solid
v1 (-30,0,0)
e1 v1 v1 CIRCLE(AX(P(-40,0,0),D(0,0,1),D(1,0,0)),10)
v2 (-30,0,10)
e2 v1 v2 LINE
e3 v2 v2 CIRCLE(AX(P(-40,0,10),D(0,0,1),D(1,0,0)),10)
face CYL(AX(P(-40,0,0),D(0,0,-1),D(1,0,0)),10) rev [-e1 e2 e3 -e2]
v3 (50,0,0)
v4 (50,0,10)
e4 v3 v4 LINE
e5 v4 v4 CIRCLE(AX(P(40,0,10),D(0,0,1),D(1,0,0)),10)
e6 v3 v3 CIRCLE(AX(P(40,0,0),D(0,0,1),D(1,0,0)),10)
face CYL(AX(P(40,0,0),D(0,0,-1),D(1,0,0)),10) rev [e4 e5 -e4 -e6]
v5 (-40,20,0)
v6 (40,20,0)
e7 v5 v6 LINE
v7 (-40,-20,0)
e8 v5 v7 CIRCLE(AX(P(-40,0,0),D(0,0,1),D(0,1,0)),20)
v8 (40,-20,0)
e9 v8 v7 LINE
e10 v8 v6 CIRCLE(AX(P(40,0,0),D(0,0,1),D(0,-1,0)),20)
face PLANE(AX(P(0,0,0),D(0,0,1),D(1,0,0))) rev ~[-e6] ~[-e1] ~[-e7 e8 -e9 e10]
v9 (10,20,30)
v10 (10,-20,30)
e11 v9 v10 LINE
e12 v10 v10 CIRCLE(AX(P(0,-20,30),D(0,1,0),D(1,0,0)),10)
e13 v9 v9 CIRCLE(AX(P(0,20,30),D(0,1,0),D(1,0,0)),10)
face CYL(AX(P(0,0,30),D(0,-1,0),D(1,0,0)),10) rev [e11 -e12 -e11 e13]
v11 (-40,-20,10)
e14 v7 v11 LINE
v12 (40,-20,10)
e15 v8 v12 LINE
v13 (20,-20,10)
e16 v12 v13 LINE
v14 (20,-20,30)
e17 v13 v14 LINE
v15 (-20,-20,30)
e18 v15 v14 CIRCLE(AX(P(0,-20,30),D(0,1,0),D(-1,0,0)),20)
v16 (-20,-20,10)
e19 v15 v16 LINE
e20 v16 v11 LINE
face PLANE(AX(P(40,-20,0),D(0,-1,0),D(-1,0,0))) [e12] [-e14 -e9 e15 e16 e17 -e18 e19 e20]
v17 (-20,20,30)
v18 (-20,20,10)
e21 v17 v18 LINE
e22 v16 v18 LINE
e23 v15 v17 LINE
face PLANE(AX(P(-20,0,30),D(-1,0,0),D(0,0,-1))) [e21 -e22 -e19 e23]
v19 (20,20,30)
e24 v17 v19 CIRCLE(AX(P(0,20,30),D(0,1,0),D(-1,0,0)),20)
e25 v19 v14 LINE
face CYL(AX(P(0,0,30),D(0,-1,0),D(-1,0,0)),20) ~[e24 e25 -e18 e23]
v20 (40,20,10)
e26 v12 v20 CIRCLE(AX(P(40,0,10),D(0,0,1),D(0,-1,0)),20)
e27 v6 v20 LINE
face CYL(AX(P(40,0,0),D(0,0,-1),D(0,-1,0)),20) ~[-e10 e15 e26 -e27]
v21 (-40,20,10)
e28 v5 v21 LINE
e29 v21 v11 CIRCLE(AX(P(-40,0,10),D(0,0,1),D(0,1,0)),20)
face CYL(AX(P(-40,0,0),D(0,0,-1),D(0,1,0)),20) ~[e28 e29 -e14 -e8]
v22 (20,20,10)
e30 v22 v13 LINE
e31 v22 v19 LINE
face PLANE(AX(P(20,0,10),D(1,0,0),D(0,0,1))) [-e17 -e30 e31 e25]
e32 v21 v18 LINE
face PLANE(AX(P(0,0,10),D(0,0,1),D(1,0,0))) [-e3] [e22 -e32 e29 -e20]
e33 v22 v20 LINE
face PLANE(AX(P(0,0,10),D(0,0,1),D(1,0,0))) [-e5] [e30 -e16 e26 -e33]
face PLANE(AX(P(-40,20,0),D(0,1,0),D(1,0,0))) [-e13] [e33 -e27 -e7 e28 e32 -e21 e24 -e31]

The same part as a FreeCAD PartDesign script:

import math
import FreeCAD as App
import Part
import Sketcher
from FreeCAD import Vector

doc = App.newDocument("Part")
body = doc.addObject("PartDesign::Body", "Body")

sketch1 = body.newObject("Sketcher::SketchObject", "Sketch")
sketch1.AttachmentSupport = (doc.getObject("XY_Plane"), [""])
sketch1.MapMode = "FlatFace"
sketch1.addGeometry(Part.LineSegment(Vector(-40, -20, 0), Vector(40, -20, 0)), False)
sketch1.addGeometry(Part.ArcOfCircle(Part.Circle(Vector(40, 0, 0), Vector(0, 0, 1), 20), math.radians(-90), math.radians(90)), False)
sketch1.addGeometry(Part.LineSegment(Vector(40, 20, 0), Vector(-40, 20, 0)), False)
sketch1.addGeometry(Part.ArcOfCircle(Part.Circle(Vector(-40, 0, 0), Vector(0, 0, 1), 20), math.radians(90), math.radians(270)), False)
sketch1.addGeometry(Part.Circle(Vector(-40, 0, 0), Vector(0, 0, 1), 10), False)
sketch1.addGeometry(Part.Circle(Vector(40, 0, 0), Vector(0, 0, 1), 10), False)
sketch1.addConstraint(Sketcher.Constraint("Tangent", 0, 2, 1, 1))
sketch1.addConstraint(Sketcher.Constraint("Tangent", 1, 2, 2, 1))
sketch1.addConstraint(Sketcher.Constraint("Tangent", 2, 2, 3, 1))
sketch1.addConstraint(Sketcher.Constraint("Tangent", 3, 2, 0, 1))
sketch1.addConstraint(Sketcher.Constraint("Horizontal", 0))
sketch1.addConstraint(Sketcher.Constraint("Horizontal", 2))
sketch1.addConstraint(Sketcher.Constraint("Coincident", 4, 3, 3, 3))
sketch1.addConstraint(Sketcher.Constraint("Coincident", 5, 3, 1, 3))
sketch1.addConstraint(Sketcher.Constraint("Equal", 4, 5))
sketch1.addConstraint(Sketcher.Constraint("Symmetric", 1, 3, 3, 3, -1, 1))
sketch1.addConstraint(Sketcher.Constraint("Radius", 1, 20.0))
sketch1.addConstraint(Sketcher.Constraint("DistanceX", 0, 1, 0, 2, 80.0))
sketch1.addConstraint(Sketcher.Constraint("Diameter", 4, 20.0))
pad1 = body.newObject("PartDesign::Pad", "Pad")
pad1.Profile = sketch1
pad1.Length = 10

sketch2 = body.newObject("Sketcher::SketchObject", "Sketch001")
sketch2.AttachmentSupport = (doc.getObject("XZ_Plane"), [""])
sketch2.MapMode = "FlatFace"
sketch2.addGeometry(Part.LineSegment(Vector(20, 10, 0), Vector(-20, 10, 0)), False)
sketch2.addGeometry(Part.LineSegment(Vector(-20, 10, 0), Vector(-20, 30, 0)), False)
sketch2.addGeometry(Part.ArcOfCircle(Part.Circle(Vector(0, 30, 0), Vector(0, 0, 1), 20), math.radians(0), math.radians(180)), False)
sketch2.addGeometry(Part.LineSegment(Vector(20, 30, 0), Vector(20, 10, 0)), False)
sketch2.addGeometry(Part.Circle(Vector(0, 30, 0), Vector(0, 0, 1), 10), False)
sketch2.addConstraint(Sketcher.Constraint("Coincident", 0, 2, 1, 1))
sketch2.addConstraint(Sketcher.Constraint("Tangent", 1, 2, 2, 2))
sketch2.addConstraint(Sketcher.Constraint("Tangent", 2, 1, 3, 1))
sketch2.addConstraint(Sketcher.Constraint("Coincident", 3, 2, 0, 1))
sketch2.addConstraint(Sketcher.Constraint("Horizontal", 0))
sketch2.addConstraint(Sketcher.Constraint("Vertical", 1))
sketch2.addConstraint(Sketcher.Constraint("Vertical", 3))
sketch2.addConstraint(Sketcher.Constraint("Coincident", 4, 3, 2, 3))
sketch2.addConstraint(Sketcher.Constraint("PointOnObject", 2, 3, -2))
sketch2.addConstraint(Sketcher.Constraint("Diameter", 4, 20.0))
sketch2.addConstraint(Sketcher.Constraint("Radius", 2, 20.0))
sketch2.addConstraint(Sketcher.Constraint("DistanceY", 1, 1, 1, 2, 20.0))
sketch2.addConstraint(Sketcher.Constraint("DistanceY", -1, 1, 2, 3, 30.0))
pad2 = body.newObject("PartDesign::Pad", "Pad001")
pad2.Profile = sketch2
pad2.Length = 40
pad2.Midplane = True

doc.recompute()
